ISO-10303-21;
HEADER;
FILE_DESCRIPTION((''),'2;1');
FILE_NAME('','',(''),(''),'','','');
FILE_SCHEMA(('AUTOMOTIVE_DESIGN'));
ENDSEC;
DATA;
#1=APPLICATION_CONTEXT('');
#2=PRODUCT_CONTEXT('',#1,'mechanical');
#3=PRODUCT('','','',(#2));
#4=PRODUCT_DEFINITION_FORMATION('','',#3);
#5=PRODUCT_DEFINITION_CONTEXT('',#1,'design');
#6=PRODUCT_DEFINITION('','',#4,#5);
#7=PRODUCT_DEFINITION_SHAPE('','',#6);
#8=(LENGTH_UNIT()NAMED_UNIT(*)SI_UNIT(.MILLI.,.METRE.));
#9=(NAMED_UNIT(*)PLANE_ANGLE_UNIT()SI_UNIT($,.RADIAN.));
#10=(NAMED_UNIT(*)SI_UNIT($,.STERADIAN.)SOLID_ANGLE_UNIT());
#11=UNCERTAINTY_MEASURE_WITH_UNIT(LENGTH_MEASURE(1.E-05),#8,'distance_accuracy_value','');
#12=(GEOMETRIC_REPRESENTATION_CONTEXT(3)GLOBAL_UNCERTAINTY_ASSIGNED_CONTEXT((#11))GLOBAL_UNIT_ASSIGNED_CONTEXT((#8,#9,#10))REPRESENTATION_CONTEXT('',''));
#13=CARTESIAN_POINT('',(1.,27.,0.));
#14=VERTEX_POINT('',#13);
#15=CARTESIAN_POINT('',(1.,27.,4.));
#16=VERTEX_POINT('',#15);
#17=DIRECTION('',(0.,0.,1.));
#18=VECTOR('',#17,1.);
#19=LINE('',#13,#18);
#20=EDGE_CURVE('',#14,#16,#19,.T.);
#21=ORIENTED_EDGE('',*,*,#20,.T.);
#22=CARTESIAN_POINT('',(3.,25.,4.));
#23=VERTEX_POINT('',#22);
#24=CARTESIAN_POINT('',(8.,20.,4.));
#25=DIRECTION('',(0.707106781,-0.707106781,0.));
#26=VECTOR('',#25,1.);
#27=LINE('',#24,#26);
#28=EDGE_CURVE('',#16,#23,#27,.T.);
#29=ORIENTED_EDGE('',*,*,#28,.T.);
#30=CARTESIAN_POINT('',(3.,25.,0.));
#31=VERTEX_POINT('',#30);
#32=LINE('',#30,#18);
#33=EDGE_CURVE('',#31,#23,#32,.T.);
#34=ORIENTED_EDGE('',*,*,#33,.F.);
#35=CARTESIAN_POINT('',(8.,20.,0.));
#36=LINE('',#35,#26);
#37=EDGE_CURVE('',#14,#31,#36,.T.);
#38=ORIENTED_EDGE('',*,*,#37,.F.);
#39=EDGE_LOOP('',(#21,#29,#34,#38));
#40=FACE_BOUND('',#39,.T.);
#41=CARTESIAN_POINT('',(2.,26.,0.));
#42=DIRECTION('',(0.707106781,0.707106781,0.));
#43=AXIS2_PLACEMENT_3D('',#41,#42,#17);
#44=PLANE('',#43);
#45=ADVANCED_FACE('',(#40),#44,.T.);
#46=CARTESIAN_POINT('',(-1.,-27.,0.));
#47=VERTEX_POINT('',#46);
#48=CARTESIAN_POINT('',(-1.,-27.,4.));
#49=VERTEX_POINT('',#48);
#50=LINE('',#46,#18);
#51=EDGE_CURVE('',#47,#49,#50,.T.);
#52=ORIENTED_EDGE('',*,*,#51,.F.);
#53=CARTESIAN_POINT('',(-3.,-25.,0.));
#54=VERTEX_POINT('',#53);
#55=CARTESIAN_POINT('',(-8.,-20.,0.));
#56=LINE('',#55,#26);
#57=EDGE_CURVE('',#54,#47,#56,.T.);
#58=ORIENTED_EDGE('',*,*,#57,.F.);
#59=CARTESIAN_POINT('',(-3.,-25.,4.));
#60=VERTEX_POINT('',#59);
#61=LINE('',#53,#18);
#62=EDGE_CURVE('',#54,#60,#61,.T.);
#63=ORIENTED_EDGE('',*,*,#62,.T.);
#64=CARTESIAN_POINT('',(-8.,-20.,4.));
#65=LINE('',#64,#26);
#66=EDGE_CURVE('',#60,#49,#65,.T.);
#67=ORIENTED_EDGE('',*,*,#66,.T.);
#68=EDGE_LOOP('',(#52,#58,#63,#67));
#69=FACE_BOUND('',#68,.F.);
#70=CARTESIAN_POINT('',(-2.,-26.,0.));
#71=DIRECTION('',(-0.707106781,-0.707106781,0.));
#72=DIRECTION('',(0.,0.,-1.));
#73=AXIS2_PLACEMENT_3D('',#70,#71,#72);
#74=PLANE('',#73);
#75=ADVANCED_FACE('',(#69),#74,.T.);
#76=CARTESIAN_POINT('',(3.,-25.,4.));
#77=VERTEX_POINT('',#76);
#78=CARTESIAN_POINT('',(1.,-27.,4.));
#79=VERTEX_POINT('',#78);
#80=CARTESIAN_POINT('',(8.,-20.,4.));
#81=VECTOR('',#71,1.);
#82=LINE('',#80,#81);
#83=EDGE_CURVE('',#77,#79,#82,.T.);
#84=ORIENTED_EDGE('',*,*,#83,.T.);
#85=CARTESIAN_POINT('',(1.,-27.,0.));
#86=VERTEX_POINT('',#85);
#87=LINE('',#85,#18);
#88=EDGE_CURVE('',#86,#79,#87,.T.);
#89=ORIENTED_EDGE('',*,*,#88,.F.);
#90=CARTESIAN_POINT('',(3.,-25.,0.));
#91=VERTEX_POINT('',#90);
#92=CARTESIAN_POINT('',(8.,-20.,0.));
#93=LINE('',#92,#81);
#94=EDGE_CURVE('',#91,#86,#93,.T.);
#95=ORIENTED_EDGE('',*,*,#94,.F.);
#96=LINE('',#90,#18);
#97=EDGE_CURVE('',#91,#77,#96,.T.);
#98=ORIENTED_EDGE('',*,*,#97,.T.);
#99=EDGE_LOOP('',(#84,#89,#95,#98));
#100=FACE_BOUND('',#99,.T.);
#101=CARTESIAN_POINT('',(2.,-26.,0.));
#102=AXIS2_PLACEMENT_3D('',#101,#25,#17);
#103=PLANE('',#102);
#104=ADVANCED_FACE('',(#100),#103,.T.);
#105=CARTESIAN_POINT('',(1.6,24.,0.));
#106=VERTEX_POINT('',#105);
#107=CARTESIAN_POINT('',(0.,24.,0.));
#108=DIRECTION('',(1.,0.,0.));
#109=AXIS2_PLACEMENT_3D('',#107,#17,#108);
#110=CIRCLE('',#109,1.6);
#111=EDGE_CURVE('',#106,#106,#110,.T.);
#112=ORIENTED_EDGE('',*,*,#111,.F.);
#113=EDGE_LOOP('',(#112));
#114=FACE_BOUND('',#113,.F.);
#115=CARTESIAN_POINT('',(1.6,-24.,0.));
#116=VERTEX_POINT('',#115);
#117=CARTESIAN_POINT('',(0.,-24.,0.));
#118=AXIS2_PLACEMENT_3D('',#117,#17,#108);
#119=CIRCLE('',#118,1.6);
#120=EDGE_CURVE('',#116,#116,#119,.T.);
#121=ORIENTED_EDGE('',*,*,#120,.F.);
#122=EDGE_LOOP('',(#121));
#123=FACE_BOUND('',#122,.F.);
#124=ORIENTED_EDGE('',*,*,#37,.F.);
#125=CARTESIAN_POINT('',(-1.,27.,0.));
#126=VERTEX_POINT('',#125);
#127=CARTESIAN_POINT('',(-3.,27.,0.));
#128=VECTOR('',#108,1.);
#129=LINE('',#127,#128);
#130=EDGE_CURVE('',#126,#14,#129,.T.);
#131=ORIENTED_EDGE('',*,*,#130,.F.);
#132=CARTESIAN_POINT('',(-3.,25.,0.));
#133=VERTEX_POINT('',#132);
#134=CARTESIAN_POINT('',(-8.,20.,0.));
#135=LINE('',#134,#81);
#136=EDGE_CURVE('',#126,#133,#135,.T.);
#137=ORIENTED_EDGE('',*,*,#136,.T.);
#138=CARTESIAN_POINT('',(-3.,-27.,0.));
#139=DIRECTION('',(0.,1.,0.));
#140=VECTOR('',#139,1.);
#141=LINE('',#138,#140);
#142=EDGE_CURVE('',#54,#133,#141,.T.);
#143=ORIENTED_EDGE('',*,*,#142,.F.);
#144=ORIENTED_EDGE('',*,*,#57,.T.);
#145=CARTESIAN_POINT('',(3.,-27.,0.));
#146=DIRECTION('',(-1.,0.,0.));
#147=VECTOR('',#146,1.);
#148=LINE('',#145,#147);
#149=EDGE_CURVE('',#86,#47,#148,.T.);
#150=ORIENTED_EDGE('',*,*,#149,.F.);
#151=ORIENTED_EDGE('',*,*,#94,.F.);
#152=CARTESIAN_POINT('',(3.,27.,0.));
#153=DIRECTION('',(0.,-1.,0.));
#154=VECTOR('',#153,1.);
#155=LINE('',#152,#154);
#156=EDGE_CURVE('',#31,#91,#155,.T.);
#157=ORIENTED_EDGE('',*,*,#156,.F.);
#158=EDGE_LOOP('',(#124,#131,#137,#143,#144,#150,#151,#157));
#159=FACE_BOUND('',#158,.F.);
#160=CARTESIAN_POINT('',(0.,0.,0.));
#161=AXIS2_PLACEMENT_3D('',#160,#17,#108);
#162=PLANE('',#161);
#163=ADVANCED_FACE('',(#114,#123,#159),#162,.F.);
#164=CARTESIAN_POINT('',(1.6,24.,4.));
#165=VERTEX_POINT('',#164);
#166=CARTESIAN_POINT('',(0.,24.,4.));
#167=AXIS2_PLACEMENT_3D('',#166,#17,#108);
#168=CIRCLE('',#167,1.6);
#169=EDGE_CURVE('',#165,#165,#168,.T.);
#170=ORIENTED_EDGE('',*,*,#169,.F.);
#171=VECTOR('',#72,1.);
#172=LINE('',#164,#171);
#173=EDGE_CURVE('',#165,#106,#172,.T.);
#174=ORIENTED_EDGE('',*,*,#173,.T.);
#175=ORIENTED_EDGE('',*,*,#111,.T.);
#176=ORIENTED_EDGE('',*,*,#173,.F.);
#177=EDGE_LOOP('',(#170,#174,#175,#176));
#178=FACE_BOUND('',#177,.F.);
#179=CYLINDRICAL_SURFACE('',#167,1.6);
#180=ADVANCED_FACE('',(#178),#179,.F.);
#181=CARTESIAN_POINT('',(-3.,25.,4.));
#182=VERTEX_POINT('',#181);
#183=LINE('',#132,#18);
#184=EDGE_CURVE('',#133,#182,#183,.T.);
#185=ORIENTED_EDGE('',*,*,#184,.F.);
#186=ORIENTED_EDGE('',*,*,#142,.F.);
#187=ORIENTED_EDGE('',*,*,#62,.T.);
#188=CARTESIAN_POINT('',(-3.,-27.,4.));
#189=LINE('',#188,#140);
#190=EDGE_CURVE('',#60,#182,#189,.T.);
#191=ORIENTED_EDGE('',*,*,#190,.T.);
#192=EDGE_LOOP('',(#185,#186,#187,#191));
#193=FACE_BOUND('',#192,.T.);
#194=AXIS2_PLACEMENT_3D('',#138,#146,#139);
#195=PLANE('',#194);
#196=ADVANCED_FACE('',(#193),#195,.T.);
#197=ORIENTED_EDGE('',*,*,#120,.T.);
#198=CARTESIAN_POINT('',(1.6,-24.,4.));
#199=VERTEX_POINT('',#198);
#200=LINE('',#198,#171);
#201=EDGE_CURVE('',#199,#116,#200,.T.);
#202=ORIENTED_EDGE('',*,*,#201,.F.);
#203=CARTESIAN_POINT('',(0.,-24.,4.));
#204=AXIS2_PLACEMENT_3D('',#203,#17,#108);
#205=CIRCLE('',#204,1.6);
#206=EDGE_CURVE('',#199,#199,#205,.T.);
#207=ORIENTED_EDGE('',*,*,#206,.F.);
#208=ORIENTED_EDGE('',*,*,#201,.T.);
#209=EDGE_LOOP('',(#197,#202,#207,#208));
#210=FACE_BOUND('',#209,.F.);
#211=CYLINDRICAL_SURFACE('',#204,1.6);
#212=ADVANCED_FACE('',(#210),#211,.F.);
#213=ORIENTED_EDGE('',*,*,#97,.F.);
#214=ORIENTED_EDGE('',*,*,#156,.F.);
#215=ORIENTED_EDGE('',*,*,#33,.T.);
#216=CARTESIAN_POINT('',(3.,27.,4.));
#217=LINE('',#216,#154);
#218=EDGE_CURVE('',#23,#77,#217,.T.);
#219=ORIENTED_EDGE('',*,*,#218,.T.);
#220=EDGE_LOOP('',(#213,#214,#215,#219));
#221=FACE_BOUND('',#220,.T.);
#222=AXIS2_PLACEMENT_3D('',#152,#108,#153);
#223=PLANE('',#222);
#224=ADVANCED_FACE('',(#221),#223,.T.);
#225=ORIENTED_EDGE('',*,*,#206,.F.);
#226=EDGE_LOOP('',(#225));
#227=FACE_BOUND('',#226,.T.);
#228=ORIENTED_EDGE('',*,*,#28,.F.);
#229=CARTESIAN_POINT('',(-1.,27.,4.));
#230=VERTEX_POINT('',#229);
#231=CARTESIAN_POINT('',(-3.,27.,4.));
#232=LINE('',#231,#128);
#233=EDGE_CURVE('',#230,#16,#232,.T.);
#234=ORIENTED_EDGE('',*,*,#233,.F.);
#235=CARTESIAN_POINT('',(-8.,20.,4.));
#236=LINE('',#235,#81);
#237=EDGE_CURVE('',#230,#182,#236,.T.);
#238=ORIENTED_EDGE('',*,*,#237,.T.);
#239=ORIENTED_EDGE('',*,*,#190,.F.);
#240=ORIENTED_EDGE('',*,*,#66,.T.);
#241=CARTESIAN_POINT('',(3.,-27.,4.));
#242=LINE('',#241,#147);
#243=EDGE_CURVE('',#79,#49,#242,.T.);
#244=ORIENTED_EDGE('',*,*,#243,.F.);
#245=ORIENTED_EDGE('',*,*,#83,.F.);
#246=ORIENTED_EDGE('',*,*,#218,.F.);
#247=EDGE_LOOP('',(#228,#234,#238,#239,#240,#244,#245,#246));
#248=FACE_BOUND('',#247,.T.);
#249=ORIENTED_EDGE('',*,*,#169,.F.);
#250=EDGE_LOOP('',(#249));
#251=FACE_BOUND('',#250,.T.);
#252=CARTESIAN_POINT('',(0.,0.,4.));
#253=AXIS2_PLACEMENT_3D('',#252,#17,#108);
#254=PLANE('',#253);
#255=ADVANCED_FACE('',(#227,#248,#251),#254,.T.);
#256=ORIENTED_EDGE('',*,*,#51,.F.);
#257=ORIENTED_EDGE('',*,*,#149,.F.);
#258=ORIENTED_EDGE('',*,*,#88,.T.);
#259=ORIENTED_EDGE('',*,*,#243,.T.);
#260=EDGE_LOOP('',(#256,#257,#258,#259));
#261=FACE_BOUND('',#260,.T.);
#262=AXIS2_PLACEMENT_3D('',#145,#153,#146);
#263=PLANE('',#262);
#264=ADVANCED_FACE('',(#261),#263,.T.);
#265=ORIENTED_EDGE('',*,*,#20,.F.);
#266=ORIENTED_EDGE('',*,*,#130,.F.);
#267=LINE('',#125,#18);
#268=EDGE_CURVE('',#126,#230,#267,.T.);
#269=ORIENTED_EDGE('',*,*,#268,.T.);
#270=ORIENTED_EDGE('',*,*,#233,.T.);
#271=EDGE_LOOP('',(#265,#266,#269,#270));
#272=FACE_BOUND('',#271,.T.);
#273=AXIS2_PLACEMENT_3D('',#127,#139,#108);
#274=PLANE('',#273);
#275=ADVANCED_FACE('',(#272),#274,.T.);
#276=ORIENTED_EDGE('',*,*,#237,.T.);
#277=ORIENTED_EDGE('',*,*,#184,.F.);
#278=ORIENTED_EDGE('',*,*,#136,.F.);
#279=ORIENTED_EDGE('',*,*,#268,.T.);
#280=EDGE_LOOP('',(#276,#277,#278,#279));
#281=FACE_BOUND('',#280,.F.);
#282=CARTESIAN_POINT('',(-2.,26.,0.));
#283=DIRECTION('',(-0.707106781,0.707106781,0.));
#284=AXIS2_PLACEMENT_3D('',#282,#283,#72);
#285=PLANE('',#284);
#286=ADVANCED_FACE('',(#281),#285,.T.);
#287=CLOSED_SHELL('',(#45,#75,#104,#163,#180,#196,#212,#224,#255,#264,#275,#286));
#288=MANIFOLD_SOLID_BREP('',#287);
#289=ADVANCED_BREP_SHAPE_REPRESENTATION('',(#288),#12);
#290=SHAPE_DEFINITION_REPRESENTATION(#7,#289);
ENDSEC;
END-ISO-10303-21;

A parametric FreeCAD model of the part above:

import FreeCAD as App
import Part
import Sketcher


def edges_at(feature, points):
    """Names of the edges that pass closest to the given points."""
    edges = feature.Shape.Edges
    near = lambda p: min(range(len(edges)), key=lambda i: edges[i].distToShape(Part.Vertex(*p))[0])
    return sorted({f"Edge{near(p) + 1}" for p in points})

doc = App.newDocument("Part")
body = doc.addObject("PartDesign::Body", "Body")

sketch1 = body.newObject("Sketcher::SketchObject", "Sketch")
sketch1.AttachmentSupport = (doc.getObject("XY_Plane"), [""])
sketch1.MapMode = "FlatFace"
sketch1.addGeometry(Part.LineSegment(App.Vector(3, 27, 0), App.Vector(-3, 27, 0)), False)
sketch1.addGeometry(Part.LineSegment(App.Vector(-3, 27, 0), App.Vector(-3, -27, 0)), False)
sketch1.addGeometry(Part.LineSegment(App.Vector(-3, -27, 0), App.Vector(3, -27, 0)), False)
sketch1.addGeometry(Part.LineSegment(App.Vector(3, -27, 0), App.Vector(3, 27, 0)), False)
sketch1.addConstraint(Sketcher.Constraint("Coincident", 0, 2, 1, 1))
sketch1.addConstraint(Sketcher.Constraint("Coincident", 1, 2, 2, 1))
sketch1.addConstraint(Sketcher.Constraint("Coincident", 2, 2, 3, 1))
sketch1.addConstraint(Sketcher.Constraint("Coincident", 3, 2, 0, 1))
sketch1.addConstraint(Sketcher.Constraint("Horizontal", 0))
sketch1.addConstraint(Sketcher.Constraint("Vertical", 1))
sketch1.addConstraint(Sketcher.Constraint("Horizontal", 2))
sketch1.addConstraint(Sketcher.Constraint("Vertical", 3))
sketch1.addConstraint(Sketcher.Constraint("Symmetric", 0, 2, 2, 2, -1, 1))
sketch1.addConstraint(Sketcher.Constraint("DistanceX", 0, 2, 0, 1, 6.0))
sketch1.addConstraint(Sketcher.Constraint("DistanceY", 1, 2, 1, 1, 54.0))
pad1 = body.newObject("PartDesign::Pad", "Pad")
pad1.Profile = sketch1
pad1.Length = 4

sketch2 = body.newObject("Sketcher::SketchObject", "Sketch001")
sketch2.AttachmentSupport = (doc.getObject("XY_Plane"), [""])
sketch2.MapMode = "FlatFace"
sketch2.AttachmentOffset = App.Placement(App.Vector(0, 0, 4), App.Rotation())
sketch2.addGeometry(Part.Circle(App.Vector(0, 24, 0), App.Vector(0, 0, 1), 1.6), False)
sketch2.addGeometry(Part.Circle(App.Vector(0, -24, 0), App.Vector(0, 0, 1), 1.6), False)
sketch2.addConstraint(Sketcher.Constraint("Equal", 0, 1))
sketch2.addConstraint(Sketcher.Constraint("Symmetric", 0, 3, 1, 3, -1, 1))
sketch2.addConstraint(Sketcher.Constraint("PointOnObject", 0, 3, -2))
sketch2.addConstraint(Sketcher.Constraint("Diameter", 0, 3.2))
sketch2.addConstraint(Sketcher.Constraint("DistanceY", -1, 1, 0, 3, 24.0))
pocket1 = body.newObject("PartDesign::Pocket", "Pocket")
pocket1.Profile = sketch2
pocket1.Type = "UpToFirst"
doc.recompute()

chamfer = body.newObject("PartDesign::Chamfer", "Chamfer")
chamfer.Base = (pocket1, edges_at(pocket1, [
    (3, 27, 2),
    (-3, 27, 2),
    (-3, -27, 2),
    (3, -27, 2),
]))
chamfer.Size = 2

doc.recompute()
